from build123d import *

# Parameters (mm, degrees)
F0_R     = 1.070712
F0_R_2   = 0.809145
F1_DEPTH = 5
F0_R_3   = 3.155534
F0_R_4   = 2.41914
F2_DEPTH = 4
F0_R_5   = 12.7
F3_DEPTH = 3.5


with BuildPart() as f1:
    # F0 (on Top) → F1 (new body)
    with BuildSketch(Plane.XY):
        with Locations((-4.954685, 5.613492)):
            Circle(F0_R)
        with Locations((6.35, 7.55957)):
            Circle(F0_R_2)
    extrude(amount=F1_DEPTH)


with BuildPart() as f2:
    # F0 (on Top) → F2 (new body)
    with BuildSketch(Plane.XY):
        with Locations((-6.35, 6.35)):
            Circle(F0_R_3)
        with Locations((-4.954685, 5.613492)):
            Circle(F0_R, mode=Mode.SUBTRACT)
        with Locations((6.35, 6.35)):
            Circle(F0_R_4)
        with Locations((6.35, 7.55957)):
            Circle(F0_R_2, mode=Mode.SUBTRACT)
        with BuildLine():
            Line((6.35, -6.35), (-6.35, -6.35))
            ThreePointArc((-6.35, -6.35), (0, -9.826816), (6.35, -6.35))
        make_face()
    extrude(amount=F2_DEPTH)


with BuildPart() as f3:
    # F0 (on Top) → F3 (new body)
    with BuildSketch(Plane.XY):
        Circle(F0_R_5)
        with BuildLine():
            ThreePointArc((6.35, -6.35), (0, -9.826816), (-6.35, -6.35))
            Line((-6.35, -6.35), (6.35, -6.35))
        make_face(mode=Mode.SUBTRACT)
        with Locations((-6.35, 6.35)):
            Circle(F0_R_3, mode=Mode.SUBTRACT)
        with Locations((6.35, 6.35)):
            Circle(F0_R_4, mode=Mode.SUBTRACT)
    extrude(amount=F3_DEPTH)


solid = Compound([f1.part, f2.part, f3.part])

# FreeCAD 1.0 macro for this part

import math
import FreeCAD as App
import Part
import Sketcher
Q = App.Units.Quantity

doc = App.newDocument("Part")
body = doc.addObject("PartDesign::Body", "Body")
body.AllowCompound = True

# Sketch on XY plane
sketch1 = body.newObject("Sketcher::SketchObject", "Sketch")
sketch1.AttachmentSupport = (doc.getObject("XY_Plane"), [""])
sketch1.MapMode = "FlatFace"
sketch1.addGeometry([
    Part.Circle(App.Vector(-5, 5.6, 0), App.Vector(0, 0, 1), 1.1),
    Part.Circle(App.Vector(6.3, 7.6, 0), App.Vector(0, 0, 1), 0.8),
], False)
sketch1.addConstraint([
    Sketcher.Constraint("Diameter", 1, Q("1.61829 mm")),
    Sketcher.Constraint("DistanceX", -1, 1, 1, 3, Q("6.35 mm")),
    Sketcher.Constraint("Diameter", 0, Q("2.141424 mm")),
    Sketcher.Constraint("DistanceY", -1, 1, 1, 3, Q("7.55957 mm")),
    Sketcher.Constraint("DistanceX", 0, 3, -1, 1, Q("4.954685 mm")),
    Sketcher.Constraint("DistanceY", -1, 1, 0, 3, Q("5.613492 mm")),
])
pad1 = body.newObject("PartDesign::Pad", "Pad")
pad1.Profile = sketch1
pad1.Length = 5
body2 = doc.addObject("PartDesign::Body", "Body001")
body2.AllowCompound = True

# Sketch on XY plane
sketch2 = body2.newObject("Sketcher::SketchObject", "Sketch001")
sketch2.AttachmentSupport = (doc.getObject("XY_Plane001"), [""])
sketch2.MapMode = "FlatFace"
sketch2.addGeometry([
    Part.Circle(App.Vector(-6.3, 6.3, 0), App.Vector(0, 0, 1), 3.2),  # 0
    Part.Circle(App.Vector(-5, 5.6, 0), App.Vector(0, 0, 1), 1.1),  # 1
    Part.Circle(App.Vector(6.3, 6.3, 0), App.Vector(0, 0, 1), 2.4),  # 2
    Part.Circle(App.Vector(6.3, 7.6, 0), App.Vector(0, 0, 1), 0.8),  # 3
    Part.LineSegment(App.Vector(6.3, -6.3, 0), App.Vector(-6.3, -6.3, 0)),  # 4
    Part.ArcOfCircle(Part.Circle(App.Vector(0, -2.3, 0), App.Vector(0, 0, 1), 7.5), math.radians(-147), math.radians(-33)),  # 5
], False)
sketch2.addConstraint([
    Sketcher.Constraint("Coincident", 4, 1, 5, 2),
    Sketcher.Constraint("Coincident", 5, 1, 4, 2),
    Sketcher.Constraint("Horizontal", 4),
    Sketcher.Constraint("Symmetric", 0, 3, 2, 3, -2),
    Sketcher.Constraint("PointOnObject", 5, 3, -2),
    Sketcher.Constraint("Vertical", 2, 3, 3, 3),
    Sketcher.Constraint("Vertical", 3, 3, 4, 1),
    Sketcher.Constraint("DistanceX", 4, 2, 4, 1, Q("12.7 mm")),
    Sketcher.Constraint("DistanceY", 4, 1, 2, 3, Q("12.7 mm")),
    Sketcher.Constraint("Diameter", 2, Q("4.83828 mm")),
    Sketcher.Constraint("Diameter", 3, Q("1.61829 mm")),
    Sketcher.Constraint("DistanceY", -1, 1, 0, 3, Q("6.35 mm")),
    Sketcher.Constraint("Diameter", 0, Q("6.311068 mm")),
    Sketcher.Constraint("Diameter", 1, Q("2.141424 mm")),
    Sketcher.Constraint("Radius", 5, Q("7.537176 mm")),
    Sketcher.Constraint("DistanceY", -1, 1, 3, 3, Q("7.55957 mm")),
    Sketcher.Constraint("DistanceY", 5, 3, 1, 3, Q("7.903132 mm")),
    Sketcher.Constraint("DistanceX", 1, 3, -1, 1, Q("4.954685 mm")),
])
pad2 = body2.newObject("PartDesign::Pad", "Pad001")
pad2.Profile = sketch2
pad2.Length = 4
body3 = doc.addObject("PartDesign::Body", "Body002")

# Sketch on XY plane
sketch3 = body3.newObject("Sketcher::SketchObject", "Sketch002")
sketch3.AttachmentSupport = (doc.getObject("XY_Plane002"), [""])
sketch3.MapMode = "FlatFace"
sketch3.addGeometry([
    Part.Circle(App.Vector(0, 0, 0), App.Vector(0, 0, 1), 12.7),  # 0
    Part.LineSegment(App.Vector(-6.3, -6.3, 0), App.Vector(6.3, -6.3, 0)),  # 1
    Part.ArcOfCircle(Part.Circle(App.Vector(0, -2.3, 0), App.Vector(0, 0, 1), 7.5), math.radians(-147), math.radians(-33)),  # 2
    Part.Circle(App.Vector(-6.3, 6.3, 0), App.Vector(0, 0, 1), 3.2),  # 3
    Part.Circle(App.Vector(6.3, 6.3, 0), App.Vector(0, 0, 1), 2.4),  # 4
], False)
sketch3.addConstraint([
    Sketcher.Constraint("Coincident", 1, 1, 2, 1),
    Sketcher.Constraint("Coincident", 2, 2, 1, 2),
    Sketcher.Constraint("Horizontal", 1),
    Sketcher.Constraint("Coincident", 0, 3, -1, 1),
    Sketcher.Constraint("Symmetric", 3, 3, 4, 3, -2),
    Sketcher.Constraint("PointOnObject", 2, 3, -2),
    Sketcher.Constraint("Vertical", 3, 3, 1, 1),
    Sketcher.Constraint("Diameter", 0, Q("25.4 mm")),
    Sketcher.Constraint("DistanceX", 1, 1, 1, 2, Q("12.7 mm")),
    Sketcher.Constraint("DistanceY", 1, 1, 3, 3, Q("12.7 mm")),
    Sketcher.Constraint("Diameter", 4, Q("4.83828 mm")),
    Sketcher.Constraint("DistanceY", -1, 1, 3, 3, Q("6.35 mm")),
    Sketcher.Constraint("Diameter", 3, Q("6.311068 mm")),
    Sketcher.Constraint("Radius", 2, Q("7.537176 mm")),
])
pad3 = body3.newObject("PartDesign::Pad", "Pad002")
pad3.Profile = sketch3
pad3.Length = 3.5

doc.recompute()
